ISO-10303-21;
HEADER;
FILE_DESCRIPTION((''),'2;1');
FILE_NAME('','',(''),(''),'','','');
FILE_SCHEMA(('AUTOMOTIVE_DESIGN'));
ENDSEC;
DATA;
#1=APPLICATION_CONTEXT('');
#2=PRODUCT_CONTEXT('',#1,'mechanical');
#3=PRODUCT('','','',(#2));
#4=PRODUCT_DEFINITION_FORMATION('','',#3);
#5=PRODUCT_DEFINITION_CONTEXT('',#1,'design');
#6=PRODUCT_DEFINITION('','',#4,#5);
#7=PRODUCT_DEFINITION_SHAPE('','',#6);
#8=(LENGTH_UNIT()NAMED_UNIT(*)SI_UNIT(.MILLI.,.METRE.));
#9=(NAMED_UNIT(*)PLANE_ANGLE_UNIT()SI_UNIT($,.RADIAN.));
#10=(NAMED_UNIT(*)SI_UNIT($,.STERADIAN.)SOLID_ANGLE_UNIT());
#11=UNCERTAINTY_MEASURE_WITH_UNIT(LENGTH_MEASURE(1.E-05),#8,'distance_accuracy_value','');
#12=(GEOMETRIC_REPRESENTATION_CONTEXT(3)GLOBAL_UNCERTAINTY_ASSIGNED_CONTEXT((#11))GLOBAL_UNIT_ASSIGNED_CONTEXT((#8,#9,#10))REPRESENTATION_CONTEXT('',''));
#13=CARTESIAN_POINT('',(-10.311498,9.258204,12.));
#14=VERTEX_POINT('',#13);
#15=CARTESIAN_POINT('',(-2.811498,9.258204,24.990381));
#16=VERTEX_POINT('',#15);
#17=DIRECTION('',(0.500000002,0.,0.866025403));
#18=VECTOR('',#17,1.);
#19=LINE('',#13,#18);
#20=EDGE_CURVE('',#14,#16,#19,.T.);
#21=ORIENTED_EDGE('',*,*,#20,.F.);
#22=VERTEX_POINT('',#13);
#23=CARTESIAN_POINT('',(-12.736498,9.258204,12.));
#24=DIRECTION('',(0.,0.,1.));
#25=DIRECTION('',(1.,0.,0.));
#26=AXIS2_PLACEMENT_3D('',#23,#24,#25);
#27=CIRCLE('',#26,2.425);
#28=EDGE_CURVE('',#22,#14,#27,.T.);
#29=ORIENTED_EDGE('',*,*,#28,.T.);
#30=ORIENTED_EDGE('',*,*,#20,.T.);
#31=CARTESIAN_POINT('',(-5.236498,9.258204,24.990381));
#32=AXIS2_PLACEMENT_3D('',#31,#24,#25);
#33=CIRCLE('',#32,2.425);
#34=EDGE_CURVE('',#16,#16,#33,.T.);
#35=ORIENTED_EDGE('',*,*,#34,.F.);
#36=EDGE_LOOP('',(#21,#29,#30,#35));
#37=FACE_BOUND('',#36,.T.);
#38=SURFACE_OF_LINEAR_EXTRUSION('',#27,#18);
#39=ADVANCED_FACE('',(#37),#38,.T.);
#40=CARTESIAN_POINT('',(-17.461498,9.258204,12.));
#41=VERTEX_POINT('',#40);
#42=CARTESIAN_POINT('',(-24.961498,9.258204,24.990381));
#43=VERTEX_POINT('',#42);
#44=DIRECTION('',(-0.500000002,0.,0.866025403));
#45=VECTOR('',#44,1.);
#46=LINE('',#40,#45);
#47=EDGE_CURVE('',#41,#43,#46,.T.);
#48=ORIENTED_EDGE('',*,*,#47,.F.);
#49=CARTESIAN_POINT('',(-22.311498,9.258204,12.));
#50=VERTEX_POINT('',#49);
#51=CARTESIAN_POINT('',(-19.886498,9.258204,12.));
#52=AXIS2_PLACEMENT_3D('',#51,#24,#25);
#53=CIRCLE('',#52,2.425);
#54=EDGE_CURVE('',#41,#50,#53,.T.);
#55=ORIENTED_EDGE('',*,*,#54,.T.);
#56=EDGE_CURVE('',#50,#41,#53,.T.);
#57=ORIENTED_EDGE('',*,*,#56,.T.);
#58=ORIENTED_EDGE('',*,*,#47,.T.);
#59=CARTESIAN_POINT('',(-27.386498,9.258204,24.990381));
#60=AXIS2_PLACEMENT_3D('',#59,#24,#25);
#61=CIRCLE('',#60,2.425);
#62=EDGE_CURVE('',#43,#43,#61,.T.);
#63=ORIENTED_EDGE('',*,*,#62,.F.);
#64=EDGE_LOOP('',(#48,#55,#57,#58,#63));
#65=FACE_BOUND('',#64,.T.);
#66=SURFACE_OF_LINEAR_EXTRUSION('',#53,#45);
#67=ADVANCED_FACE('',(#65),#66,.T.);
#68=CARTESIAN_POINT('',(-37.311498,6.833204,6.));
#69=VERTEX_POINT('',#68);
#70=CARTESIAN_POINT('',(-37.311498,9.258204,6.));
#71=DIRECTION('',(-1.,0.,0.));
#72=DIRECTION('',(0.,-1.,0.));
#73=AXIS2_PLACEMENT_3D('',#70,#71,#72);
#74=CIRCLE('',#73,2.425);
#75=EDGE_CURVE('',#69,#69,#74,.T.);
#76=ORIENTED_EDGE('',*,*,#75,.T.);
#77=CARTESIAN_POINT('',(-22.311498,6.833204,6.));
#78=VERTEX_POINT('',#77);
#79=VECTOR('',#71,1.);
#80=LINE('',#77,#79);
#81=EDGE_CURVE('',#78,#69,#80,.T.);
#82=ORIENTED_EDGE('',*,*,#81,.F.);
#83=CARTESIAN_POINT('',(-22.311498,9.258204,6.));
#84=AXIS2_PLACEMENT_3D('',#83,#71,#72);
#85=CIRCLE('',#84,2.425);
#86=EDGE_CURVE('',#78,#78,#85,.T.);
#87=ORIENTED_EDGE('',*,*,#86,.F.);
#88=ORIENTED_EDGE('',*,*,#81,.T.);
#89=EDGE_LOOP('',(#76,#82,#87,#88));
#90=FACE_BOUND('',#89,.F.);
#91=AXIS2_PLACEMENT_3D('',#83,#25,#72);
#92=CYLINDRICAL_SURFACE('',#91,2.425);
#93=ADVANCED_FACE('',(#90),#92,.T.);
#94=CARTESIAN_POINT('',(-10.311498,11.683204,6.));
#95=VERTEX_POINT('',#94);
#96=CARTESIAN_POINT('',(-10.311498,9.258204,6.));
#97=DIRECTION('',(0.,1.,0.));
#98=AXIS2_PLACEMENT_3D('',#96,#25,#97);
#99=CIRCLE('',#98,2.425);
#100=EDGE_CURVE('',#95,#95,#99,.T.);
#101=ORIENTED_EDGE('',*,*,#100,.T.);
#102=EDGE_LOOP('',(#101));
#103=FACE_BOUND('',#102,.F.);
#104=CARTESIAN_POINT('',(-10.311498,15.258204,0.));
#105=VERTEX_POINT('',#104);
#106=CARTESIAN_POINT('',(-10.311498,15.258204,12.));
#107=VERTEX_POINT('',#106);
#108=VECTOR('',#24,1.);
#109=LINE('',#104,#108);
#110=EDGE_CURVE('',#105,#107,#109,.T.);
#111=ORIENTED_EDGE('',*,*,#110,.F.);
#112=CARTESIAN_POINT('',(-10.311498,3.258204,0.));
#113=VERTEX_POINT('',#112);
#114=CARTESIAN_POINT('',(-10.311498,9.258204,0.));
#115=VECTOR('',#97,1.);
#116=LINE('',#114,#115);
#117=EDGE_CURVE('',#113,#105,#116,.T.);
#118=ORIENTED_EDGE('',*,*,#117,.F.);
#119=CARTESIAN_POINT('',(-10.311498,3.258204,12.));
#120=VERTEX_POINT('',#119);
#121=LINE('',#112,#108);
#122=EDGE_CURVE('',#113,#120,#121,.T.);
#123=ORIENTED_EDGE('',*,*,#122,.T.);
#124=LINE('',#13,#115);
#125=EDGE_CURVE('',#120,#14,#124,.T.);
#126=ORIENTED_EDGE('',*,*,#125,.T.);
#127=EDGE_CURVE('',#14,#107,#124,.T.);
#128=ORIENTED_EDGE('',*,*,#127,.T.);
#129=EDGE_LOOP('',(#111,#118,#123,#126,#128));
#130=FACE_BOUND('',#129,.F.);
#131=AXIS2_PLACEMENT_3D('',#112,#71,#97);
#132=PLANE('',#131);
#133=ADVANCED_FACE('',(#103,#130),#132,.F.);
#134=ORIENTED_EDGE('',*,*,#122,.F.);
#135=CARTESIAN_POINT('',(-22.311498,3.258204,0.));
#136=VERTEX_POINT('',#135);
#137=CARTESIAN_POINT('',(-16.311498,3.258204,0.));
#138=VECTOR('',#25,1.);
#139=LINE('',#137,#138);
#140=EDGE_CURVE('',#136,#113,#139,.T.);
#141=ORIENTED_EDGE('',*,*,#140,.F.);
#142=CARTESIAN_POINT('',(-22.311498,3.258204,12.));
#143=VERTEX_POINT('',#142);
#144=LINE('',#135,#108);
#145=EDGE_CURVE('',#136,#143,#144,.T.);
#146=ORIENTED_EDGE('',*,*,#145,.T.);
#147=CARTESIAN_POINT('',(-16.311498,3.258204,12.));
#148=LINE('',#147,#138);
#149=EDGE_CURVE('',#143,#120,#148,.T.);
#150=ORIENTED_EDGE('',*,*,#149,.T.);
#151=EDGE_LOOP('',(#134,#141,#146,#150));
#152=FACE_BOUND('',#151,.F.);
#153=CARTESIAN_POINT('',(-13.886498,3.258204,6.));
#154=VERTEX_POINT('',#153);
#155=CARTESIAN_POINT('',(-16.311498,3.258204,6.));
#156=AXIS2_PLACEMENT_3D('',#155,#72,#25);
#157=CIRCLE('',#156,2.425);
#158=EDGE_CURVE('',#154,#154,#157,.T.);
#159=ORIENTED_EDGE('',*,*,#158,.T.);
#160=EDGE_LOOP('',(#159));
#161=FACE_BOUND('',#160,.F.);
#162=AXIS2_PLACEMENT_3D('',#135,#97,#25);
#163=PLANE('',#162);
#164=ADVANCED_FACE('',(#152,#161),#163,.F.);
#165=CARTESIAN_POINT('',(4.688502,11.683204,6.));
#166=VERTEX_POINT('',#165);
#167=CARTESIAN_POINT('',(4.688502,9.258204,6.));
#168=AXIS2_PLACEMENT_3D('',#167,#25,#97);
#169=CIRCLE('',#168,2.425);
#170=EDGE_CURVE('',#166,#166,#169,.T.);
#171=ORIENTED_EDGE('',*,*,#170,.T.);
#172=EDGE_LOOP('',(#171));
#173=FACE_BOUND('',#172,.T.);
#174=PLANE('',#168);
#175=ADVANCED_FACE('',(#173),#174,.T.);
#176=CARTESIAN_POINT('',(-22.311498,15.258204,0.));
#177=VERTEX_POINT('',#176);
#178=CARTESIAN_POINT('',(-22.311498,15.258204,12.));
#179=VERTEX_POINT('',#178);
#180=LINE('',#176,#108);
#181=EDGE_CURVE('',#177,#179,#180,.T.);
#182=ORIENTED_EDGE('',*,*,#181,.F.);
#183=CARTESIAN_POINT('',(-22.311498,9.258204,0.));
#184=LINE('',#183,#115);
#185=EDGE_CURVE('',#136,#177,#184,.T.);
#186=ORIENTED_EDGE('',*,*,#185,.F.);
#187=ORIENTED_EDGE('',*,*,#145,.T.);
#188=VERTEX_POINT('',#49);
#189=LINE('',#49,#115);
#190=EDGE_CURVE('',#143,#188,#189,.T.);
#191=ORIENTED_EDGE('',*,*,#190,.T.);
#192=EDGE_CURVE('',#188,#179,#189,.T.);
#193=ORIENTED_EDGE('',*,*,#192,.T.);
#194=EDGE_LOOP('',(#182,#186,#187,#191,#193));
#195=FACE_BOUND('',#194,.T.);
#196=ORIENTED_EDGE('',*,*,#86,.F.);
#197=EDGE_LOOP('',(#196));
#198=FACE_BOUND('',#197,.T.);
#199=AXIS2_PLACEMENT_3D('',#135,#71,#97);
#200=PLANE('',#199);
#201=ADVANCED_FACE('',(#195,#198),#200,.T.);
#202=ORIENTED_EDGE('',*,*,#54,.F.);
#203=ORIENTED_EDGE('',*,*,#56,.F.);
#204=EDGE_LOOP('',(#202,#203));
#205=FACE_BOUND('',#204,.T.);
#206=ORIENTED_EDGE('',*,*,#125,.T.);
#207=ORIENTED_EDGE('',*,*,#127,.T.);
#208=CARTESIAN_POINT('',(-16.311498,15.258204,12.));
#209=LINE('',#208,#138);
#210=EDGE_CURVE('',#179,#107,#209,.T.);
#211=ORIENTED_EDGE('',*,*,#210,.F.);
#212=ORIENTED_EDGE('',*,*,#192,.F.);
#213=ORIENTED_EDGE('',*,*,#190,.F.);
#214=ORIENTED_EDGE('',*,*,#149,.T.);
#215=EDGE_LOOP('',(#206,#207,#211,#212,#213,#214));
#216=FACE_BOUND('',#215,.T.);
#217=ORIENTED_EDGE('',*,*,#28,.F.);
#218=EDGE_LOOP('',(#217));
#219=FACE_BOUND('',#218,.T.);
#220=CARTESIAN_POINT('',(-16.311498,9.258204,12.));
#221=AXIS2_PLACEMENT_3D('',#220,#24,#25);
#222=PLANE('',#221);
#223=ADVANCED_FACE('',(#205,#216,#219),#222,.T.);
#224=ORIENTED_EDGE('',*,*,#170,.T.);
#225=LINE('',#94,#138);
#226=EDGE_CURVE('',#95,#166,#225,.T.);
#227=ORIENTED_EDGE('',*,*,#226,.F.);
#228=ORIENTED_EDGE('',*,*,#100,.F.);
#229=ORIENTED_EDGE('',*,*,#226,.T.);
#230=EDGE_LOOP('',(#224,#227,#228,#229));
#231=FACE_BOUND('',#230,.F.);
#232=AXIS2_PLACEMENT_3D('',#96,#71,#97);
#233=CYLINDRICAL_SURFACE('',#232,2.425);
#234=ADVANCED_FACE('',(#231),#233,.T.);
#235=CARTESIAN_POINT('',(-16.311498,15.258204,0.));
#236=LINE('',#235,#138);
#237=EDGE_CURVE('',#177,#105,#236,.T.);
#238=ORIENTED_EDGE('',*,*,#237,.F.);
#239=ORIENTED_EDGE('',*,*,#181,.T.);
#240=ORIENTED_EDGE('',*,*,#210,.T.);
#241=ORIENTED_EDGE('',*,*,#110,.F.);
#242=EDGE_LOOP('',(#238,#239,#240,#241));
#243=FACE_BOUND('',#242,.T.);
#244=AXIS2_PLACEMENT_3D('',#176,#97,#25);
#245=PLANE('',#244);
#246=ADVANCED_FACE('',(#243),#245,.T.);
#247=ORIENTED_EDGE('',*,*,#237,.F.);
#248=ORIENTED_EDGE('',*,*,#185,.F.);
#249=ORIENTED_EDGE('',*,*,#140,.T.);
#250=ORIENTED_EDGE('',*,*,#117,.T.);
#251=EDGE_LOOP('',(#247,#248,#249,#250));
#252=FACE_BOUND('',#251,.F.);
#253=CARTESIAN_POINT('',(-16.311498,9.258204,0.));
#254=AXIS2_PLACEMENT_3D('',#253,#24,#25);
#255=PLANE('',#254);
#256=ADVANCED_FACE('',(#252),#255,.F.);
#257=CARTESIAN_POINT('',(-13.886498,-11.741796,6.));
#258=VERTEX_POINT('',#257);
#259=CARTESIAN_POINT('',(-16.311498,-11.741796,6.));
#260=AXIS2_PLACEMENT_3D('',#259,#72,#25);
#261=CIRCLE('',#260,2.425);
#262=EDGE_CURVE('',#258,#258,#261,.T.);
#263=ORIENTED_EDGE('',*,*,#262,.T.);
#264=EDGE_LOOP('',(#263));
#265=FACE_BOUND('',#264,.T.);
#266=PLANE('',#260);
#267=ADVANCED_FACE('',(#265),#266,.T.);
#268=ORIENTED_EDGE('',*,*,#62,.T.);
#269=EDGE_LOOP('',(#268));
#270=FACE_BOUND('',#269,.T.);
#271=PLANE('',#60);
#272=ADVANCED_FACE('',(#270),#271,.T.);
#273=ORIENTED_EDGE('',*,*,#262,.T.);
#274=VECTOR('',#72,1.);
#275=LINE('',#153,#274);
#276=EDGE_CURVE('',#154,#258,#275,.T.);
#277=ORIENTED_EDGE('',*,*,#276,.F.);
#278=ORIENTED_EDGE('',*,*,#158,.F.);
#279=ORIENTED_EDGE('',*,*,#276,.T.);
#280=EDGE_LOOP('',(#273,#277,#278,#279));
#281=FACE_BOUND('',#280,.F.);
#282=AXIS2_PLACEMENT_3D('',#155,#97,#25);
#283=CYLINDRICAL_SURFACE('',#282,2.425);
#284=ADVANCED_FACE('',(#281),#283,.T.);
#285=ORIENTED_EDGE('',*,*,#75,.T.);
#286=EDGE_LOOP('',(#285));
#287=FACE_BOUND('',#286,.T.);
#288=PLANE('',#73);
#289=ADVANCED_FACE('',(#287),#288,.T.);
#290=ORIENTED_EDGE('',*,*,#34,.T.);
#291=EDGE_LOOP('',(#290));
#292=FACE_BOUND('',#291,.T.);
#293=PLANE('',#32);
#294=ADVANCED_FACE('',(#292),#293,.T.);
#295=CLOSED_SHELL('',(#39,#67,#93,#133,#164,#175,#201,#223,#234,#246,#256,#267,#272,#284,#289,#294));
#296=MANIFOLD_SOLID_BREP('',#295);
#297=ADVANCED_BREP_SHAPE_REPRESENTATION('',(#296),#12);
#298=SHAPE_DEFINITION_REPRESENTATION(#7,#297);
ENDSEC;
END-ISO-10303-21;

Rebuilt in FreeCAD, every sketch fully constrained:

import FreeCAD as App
import Part
import Sketcher
Q = App.Units.Quantity

doc = App.newDocument("Part")
params = doc.addObject("Spreadsheet::Sheet", "Params")
for row, (alias, value) in enumerate([
    ("sketch1_width", "12 mm"),
    ("pad1_length", "12 mm"),
    ("sketch2_diameter", "4.85 mm"),
    ("pad2_length", "15 mm"),
    ("sketch3_diameter", "4.85 mm"),
    ("pad3_length", "15 mm"),
    ("sketch4_diameter", "4.85 mm"),
    ("pad4_length", "15 mm"),
    ("sketch5_diameter", "4.85 mm"),
    ("sketch6_width", "15 mm"),
    ("sketch7_diameter", "4.85 mm"),
    ("sketch8_width", "15 mm"),
], start=1):
    params.set(f"A{row}", alias)
    params.set(f"B{row}", "=" + value)
    params.setAlias(f"B{row}", alias)

body = doc.addObject("PartDesign::Body", "Body")

sketch1 = doc.addObject("Sketcher::SketchObject", "Sketch")
body.addObject(sketch1)
sketch1.AttachmentSupport = (doc.XY_Plane, [""])
sketch1.MapMode = "FlatFace"
sketch1.addGeometry(Part.LineSegment(App.Vector(-22.311498, 15.258204, 0), App.Vector(-22.311498, 3.258204, 0)), False)
sketch1.addGeometry(Part.LineSegment(App.Vector(-22.311498, 3.258204, 0), App.Vector(-10.311498, 3.258204, 0)), False)
sketch1.addGeometry(Part.LineSegment(App.Vector(-10.311498, 3.258204, 0), App.Vector(-10.311498, 15.258204, 0)), False)
sketch1.addGeometry(Part.LineSegment(App.Vector(-10.311498, 15.258204, 0), App.Vector(-22.311498, 15.258204, 0)), False)
sketch1.addConstraint(Sketcher.Constraint("Coincident", 0, 2, 1, 1))
sketch1.addConstraint(Sketcher.Constraint("Coincident", 1, 2, 2, 1))
sketch1.addConstraint(Sketcher.Constraint("Coincident", 2, 2, 3, 1))
sketch1.addConstraint(Sketcher.Constraint("Coincident", 3, 2, 0, 1))
sketch1.addConstraint(Sketcher.Constraint("Vertical", 0))
sketch1.addConstraint(Sketcher.Constraint("Horizontal", 1))
sketch1.addConstraint(Sketcher.Constraint("Vertical", 2))
sketch1.addConstraint(Sketcher.Constraint("Horizontal", 3))
sketch1.addConstraint(Sketcher.Constraint("Equal", 3, 0))
sketch1.addConstraint(Sketcher.Constraint("DistanceX", 1, 1, 1, 2, Q("12 mm")))
sketch1.addConstraint(Sketcher.Constraint("DistanceX", 0, 2, -1, 1, Q("22.311498 mm")))
sketch1.addConstraint(Sketcher.Constraint("DistanceY", -1, 1, 0, 2, Q("3.258204 mm")))
sketch1.setExpression("Constraints[9]", "Params.sketch1_width")
pad1 = doc.addObject("PartDesign::Pad", "Pad")
body.addObject(pad1)
pad1.Profile = sketch1
pad1.setExpression("Length", "Params.pad1_length")

sketch2 = doc.addObject("Sketcher::SketchObject", "Sketch001")
body.addObject(sketch2)
sketch2.AttachmentSupport = (doc.YZ_Plane, [""])
sketch2.MapMode = "FlatFace"
sketch2.AttachmentOffset = App.Placement(App.Vector(0, 0, -10.311498), App.Rotation())
sketch2.addGeometry(Part.Circle(App.Vector(9.258204, 6, 0), App.Vector(0, 0, 1), 2.425), False)
sketch2.addConstraint(Sketcher.Constraint("Diameter", 0, Q("4.85 mm")))
sketch2.addConstraint(Sketcher.Constraint("DistanceY", -1, 1, 0, 3, Q("6 mm")))
sketch2.addConstraint(Sketcher.Constraint("DistanceX", -1, 1, 0, 3, Q("9.258204 mm")))
sketch2.setExpression("Constraints[0]", "Params.sketch2_diameter")
pad2 = doc.addObject("PartDesign::Pad", "Pad001")
body.addObject(pad2)
pad2.Profile = sketch2
pad2.setExpression("Length", "Params.pad2_length")

sketch3 = doc.addObject("Sketcher::SketchObject", "Sketch002")
body.addObject(sketch3)
sketch3.AttachmentSupport = (doc.YZ_Plane, [""])
sketch3.MapMode = "FlatFace"
sketch3.AttachmentOffset = App.Placement(App.Vector(0, 0, -22.311498), App.Rotation())
sketch3.addGeometry(Part.Circle(App.Vector(9.258204, 6, 0), App.Vector(0, 0, 1), 2.425), False)
sketch3.addConstraint(Sketcher.Constraint("Diameter", 0, Q("4.85 mm")))
sketch3.addConstraint(Sketcher.Constraint("DistanceY", -1, 1, 0, 3, Q("6 mm")))
sketch3.addConstraint(Sketcher.Constraint("DistanceX", -1, 1, 0, 3, Q("9.258204 mm")))
sketch3.setExpression("Constraints[0]", "Params.sketch3_diameter")
pad3 = doc.addObject("PartDesign::Pad", "Pad002")
body.addObject(pad3)
pad3.Profile = sketch3
pad3.setExpression("Length", "Params.pad3_length")
pad3.Reversed = True

sketch4 = doc.addObject("Sketcher::SketchObject", "Sketch003")
body.addObject(sketch4)
sketch4.AttachmentSupport = (doc.XZ_Plane, [""])
sketch4.MapMode = "FlatFace"
sketch4.AttachmentOffset = App.Placement(App.Vector(0, 0, -3.258204), App.Rotation())
sketch4.addGeometry(Part.Circle(App.Vector(-16.311498, 6, 0), App.Vector(0, 0, 1), 2.425), False)
sketch4.addConstraint(Sketcher.Constraint("Diameter", 0, Q("4.85 mm")))
sketch4.addConstraint(Sketcher.Constraint("DistanceY", -1, 1, 0, 3, Q("6 mm")))
sketch4.addConstraint(Sketcher.Constraint("DistanceX", 0, 3, -1, 1, Q("16.311498 mm")))
sketch4.setExpression("Constraints[0]", "Params.sketch4_diameter")
pad4 = doc.addObject("PartDesign::Pad", "Pad003")
body.addObject(pad4)
pad4.Profile = sketch4
pad4.setExpression("Length", "Params.pad4_length")

sketch5 = doc.addObject("Sketcher::SketchObject", "Sketch004")
body.addObject(sketch5)
sketch5.AttachmentSupport = (doc.XY_Plane, [""])
sketch5.MapMode = "FlatFace"
sketch5.AttachmentOffset = App.Placement(App.Vector(0, 0, 12), App.Rotation())
sketch5.addGeometry(Part.Circle(App.Vector(-12.736498, 9.258204, 0), App.Vector(0, 0, 1), 2.425), False)
sketch5.addConstraint(Sketcher.Constraint("Diameter", 0, Q("4.85 mm")))
sketch5.addConstraint(Sketcher.Constraint("DistanceX", 0, 3, -1, 1, Q("12.736498 mm")))
sketch5.addConstraint(Sketcher.Constraint("DistanceY", -1, 1, 0, 3, Q("9.258204 mm")))
sketch5.setExpression("Constraints[0]", "Params.sketch5_diameter")

sketch6 = doc.addObject("Sketcher::SketchObject", "Sketch005")
body.addObject(sketch6)
sketch6.Placement = App.Placement(App.Vector(-14.748526, 0, 8.515065), App.Rotation(App.Vector(0.500000002, 0, 0.866025403), App.Vector(0, 1.000000001, 0), App.Vector(-0.866025403, 0, 0.500000002), "ZXY"))
sketch6.addGeometry(Part.LineSegment(App.Vector(4.024056, 15.258204, 0), App.Vector(19.024056, 15.258204, 0)), False)
sketch6.addConstraint(Sketcher.Constraint("Horizontal", 0))
sketch6.addConstraint(Sketcher.Constraint("DistanceX", 0, 1, 0, 2, Q("15 mm")))
sketch6.addConstraint(Sketcher.Constraint("DistanceX", -1, 1, 0, 1, Q("4.024056 mm")))
sketch6.addConstraint(Sketcher.Constraint("DistanceY", -1, 1, 0, 1, Q("15.258204 mm")))
sketch6.setExpression("Constraints[1]", "Params.sketch6_width")
doc.recompute()

additivepipe = doc.addObject("PartDesign::AdditivePipe", "AdditivePipe")
body.addObject(additivepipe)
additivepipe.Profile = sketch5
additivepipe.Spine = (sketch6, ["Edge1"])

sketch7 = doc.addObject("Sketcher::SketchObject", "Sketch006")
body.addObject(sketch7)
sketch7.AttachmentSupport = (doc.XY_Plane, [""])
sketch7.MapMode = "FlatFace"
sketch7.AttachmentOffset = App.Placement(App.Vector(0, 0, 12), App.Rotation())
sketch7.addGeometry(Part.Circle(App.Vector(-19.886498, 9.258204, 0), App.Vector(0, 0, 1), 2.425), False)
sketch7.addConstraint(Sketcher.Constraint("Diameter", 0, Q("4.85 mm")))
sketch7.addConstraint(Sketcher.Constraint("DistanceX", 0, 3, -1, 1, Q("19.886498 mm")))
sketch7.addConstraint(Sketcher.Constraint("DistanceY", -1, 1, 0, 3, Q("9.258204 mm")))
sketch7.setExpression("Constraints[0]", "Params.sketch7_diameter")

sketch8 = doc.addObject("Sketcher::SketchObject", "Sketch007")
body.addObject(sketch8)
sketch8.Placement = App.Placement(App.Vector(-9.718721, 0, -5.611106), App.Rotation(App.Vector(-0.500000002, 0, 0.866025403), App.Vector(0, 1.000000001, 0), App.Vector(-0.866025403, 0, -0.500000002), "ZXY"))
sketch8.addGeometry(Part.LineSegment(App.Vector(20.335554, 15.258204, 0), App.Vector(35.335554, 15.258204, 0)), False)
sketch8.addConstraint(Sketcher.Constraint("Horizontal", 0))
sketch8.addConstraint(Sketcher.Constraint("DistanceX", 0, 1, 0, 2, Q("15 mm")))
sketch8.addConstraint(Sketcher.Constraint("DistanceX", -1, 1, 0, 1, Q("20.335554 mm")))
sketch8.addConstraint(Sketcher.Constraint("DistanceY", -1, 1, 0, 1, Q("15.258204 mm")))
sketch8.setExpression("Constraints[1]", "Params.sketch8_width")
doc.recompute()

additivepipe2 = doc.addObject("PartDesign::AdditivePipe", "AdditivePipe001")
body.addObject(additivepipe2)
additivepipe2.Profile = sketch7
additivepipe2.Spine = (sketch8, ["Edge1"])

doc.recompute()
